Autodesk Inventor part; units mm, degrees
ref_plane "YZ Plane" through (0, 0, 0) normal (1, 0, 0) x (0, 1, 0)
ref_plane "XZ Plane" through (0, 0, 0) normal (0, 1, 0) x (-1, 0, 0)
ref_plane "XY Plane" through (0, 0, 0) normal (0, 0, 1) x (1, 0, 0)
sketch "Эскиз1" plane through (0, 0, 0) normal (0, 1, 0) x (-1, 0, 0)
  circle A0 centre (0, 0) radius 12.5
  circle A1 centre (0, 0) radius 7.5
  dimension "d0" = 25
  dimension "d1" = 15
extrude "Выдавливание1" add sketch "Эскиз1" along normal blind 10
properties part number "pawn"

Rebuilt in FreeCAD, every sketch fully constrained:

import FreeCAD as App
import Part
import Sketcher
from FreeCAD import Vector
Q = App.Units.Quantity

doc = App.newDocument("Part")
params = doc.addObject("Spreadsheet::Sheet", "Params")
for row, (alias, value) in enumerate([
    ("sketch1_diameter", "25 mm"),
    ("sketch1_diameter2", "15 mm"),
    ("pad1_length", "10 mm"),
], start=1):
    params.set(f"A{row}", alias)
    params.set(f"B{row}", "=" + value)
    params.setAlias(f"B{row}", alias)

body = doc.addObject("PartDesign::Body", "Body")

sketch1 = body.newObject("Sketcher::SketchObject", "Sketch")
sketch1.AttachmentSupport = (doc.getObject("XZ_Plane"), [""])
sketch1.MapMode = "FlatFace"
sketch1.addGeometry([
    Part.Circle(Vector(0, 0, 0), Vector(0, 0, 1), 12.5),
    Part.Circle(Vector(0, 0, 0), Vector(0, 0, 1), 7.5),
], False)
sketch1.addConstraint([
    Sketcher.Constraint("Coincident", 0, 3, -1, 1),
    Sketcher.Constraint("Coincident", 1, 3, -1, 1),
    Sketcher.Constraint("Diameter", 0, Q("25 mm")),
    Sketcher.Constraint("Diameter", 1, Q("15 mm")),
])
sketch1.setExpression("Constraints[2]", "Params.sketch1_diameter")
sketch1.setExpression("Constraints[3]", "Params.sketch1_diameter2")
pad1 = body.newObject("PartDesign::Pad", "Pad")
pad1.Profile = sketch1
pad1.setExpression("Length", "Params.pad1_length")
pad1.Reversed = True

doc.recompute()
